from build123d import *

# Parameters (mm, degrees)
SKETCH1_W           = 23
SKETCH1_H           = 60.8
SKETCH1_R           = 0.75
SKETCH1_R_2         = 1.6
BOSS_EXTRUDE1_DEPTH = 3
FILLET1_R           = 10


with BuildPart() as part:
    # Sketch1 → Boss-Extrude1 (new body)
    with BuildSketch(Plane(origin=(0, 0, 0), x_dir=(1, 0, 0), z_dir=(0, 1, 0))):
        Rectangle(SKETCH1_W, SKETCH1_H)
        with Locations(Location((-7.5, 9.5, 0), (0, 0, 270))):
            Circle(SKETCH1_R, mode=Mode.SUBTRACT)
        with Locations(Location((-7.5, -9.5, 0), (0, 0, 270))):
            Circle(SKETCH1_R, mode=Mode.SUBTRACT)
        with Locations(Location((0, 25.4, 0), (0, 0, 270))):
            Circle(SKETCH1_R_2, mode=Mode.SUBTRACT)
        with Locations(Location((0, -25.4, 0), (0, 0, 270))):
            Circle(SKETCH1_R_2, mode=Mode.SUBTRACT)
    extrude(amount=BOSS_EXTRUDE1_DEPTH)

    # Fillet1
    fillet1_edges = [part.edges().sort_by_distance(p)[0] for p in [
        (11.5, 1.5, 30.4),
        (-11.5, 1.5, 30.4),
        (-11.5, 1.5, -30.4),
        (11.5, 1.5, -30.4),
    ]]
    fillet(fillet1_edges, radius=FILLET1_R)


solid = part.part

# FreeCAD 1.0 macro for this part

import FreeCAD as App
import Part
import Sketcher

V = App.Vector
Q = App.Units.Quantity


def edges_at(feature, points):
    """Names of the edges that pass closest to the given points."""
    edges = feature.Shape.Edges
    near = lambda p: min(range(len(edges)), key=lambda i: edges[i].distToShape(Part.Vertex(*p))[0])
    return sorted({f"Edge{near(p) + 1}" for p in points})

doc = App.newDocument("Part")
body = doc.addObject("PartDesign::Body", "Body")

sketch1 = doc.addObject("Sketcher::SketchObject", "Sketch")
body.addObject(sketch1)
sketch1.AttachmentSupport = (doc.XZ_Plane, [""])
sketch1.MapMode = "FlatFace"
sketch1.addGeometry([
    Part.LineSegment(V(-11.5, -30.4, 0), V(-11.5, 30.4, 0)),
    Part.LineSegment(V(-11.5, 30.4, 0), V(11.5, 30.4, 0)),
    Part.LineSegment(V(11.5, 30.4, 0), V(11.5, -30.4, 0)),
    Part.LineSegment(V(11.5, -30.4, 0), V(-11.5, -30.4, 0)),
    Part.Circle(V(-7.5, 9.5, 0), V(0, 0, 1), 0.75),
    Part.Circle(V(0, 25.4, 0), V(0, 0, 1), 1.6),
    Part.Circle(V(-7.5, -9.5, 0), V(0, 0, 1), 0.75),
    Part.Circle(V(0, -25.4, 0), V(0, 0, 1), 1.6),
], False)
sketch1.addConstraint([
    Sketcher.Constraint("Coincident", 0, 2, 1, 1),
    Sketcher.Constraint("Coincident", 1, 2, 2, 1),
    Sketcher.Constraint("Coincident", 2, 2, 3, 1),
    Sketcher.Constraint("Coincident", 3, 2, 0, 1),
    Sketcher.Constraint("Vertical", 0),
    Sketcher.Constraint("Horizontal", 1),
    Sketcher.Constraint("Vertical", 2),
    Sketcher.Constraint("Horizontal", 3),
    Sketcher.Constraint("Equal", 4, 6),
    Sketcher.Constraint("Equal", 5, 7),
    Sketcher.Constraint("Symmetric", 5, 3, 7, 3, -1, 1),
    Sketcher.Constraint("Symmetric", 0, 2, 2, 2, -1, 1),
    Sketcher.Constraint("Symmetric", 4, 3, 6, 3, -1),
    Sketcher.Constraint("PointOnObject", 5, 3, -2),
    Sketcher.Constraint("Diameter", 4, Q("1.5 mm")),
    Sketcher.Constraint("Diameter", 5, Q("3.2 mm")),
    Sketcher.Constraint("DistanceX", 1, 1, 1, 2, Q("23 mm")),
    Sketcher.Constraint("DistanceY", 0, 1, 0, 2, Q("60.8 mm")),
    Sketcher.Constraint("DistanceY", 6, 3, 4, 3, Q("19 mm")),
    Sketcher.Constraint("DistanceY", 5, 3, 0, 2, Q("5 mm")),
    Sketcher.Constraint("DistanceX", 0, 2, 4, 3, Q("4 mm")),
])
pad1 = doc.addObject("PartDesign::Pad", "Pad")
body.addObject(pad1)
pad1.Profile = sketch1
pad1.Length = 3
pad1.Reversed = True
doc.recompute()

fillet = doc.addObject("PartDesign::Fillet", "Fillet")
body.addObject(fillet)
fillet.Base = (pad1, edges_at(pad1, [
    (11.5, 1.5, 30.4),
    (-11.5, 1.5, 30.4),
    (-11.5, 1.5, -30.4),
    (11.5, 1.5, -30.4),
]))
fillet.Radius = 10

doc.recompute()
